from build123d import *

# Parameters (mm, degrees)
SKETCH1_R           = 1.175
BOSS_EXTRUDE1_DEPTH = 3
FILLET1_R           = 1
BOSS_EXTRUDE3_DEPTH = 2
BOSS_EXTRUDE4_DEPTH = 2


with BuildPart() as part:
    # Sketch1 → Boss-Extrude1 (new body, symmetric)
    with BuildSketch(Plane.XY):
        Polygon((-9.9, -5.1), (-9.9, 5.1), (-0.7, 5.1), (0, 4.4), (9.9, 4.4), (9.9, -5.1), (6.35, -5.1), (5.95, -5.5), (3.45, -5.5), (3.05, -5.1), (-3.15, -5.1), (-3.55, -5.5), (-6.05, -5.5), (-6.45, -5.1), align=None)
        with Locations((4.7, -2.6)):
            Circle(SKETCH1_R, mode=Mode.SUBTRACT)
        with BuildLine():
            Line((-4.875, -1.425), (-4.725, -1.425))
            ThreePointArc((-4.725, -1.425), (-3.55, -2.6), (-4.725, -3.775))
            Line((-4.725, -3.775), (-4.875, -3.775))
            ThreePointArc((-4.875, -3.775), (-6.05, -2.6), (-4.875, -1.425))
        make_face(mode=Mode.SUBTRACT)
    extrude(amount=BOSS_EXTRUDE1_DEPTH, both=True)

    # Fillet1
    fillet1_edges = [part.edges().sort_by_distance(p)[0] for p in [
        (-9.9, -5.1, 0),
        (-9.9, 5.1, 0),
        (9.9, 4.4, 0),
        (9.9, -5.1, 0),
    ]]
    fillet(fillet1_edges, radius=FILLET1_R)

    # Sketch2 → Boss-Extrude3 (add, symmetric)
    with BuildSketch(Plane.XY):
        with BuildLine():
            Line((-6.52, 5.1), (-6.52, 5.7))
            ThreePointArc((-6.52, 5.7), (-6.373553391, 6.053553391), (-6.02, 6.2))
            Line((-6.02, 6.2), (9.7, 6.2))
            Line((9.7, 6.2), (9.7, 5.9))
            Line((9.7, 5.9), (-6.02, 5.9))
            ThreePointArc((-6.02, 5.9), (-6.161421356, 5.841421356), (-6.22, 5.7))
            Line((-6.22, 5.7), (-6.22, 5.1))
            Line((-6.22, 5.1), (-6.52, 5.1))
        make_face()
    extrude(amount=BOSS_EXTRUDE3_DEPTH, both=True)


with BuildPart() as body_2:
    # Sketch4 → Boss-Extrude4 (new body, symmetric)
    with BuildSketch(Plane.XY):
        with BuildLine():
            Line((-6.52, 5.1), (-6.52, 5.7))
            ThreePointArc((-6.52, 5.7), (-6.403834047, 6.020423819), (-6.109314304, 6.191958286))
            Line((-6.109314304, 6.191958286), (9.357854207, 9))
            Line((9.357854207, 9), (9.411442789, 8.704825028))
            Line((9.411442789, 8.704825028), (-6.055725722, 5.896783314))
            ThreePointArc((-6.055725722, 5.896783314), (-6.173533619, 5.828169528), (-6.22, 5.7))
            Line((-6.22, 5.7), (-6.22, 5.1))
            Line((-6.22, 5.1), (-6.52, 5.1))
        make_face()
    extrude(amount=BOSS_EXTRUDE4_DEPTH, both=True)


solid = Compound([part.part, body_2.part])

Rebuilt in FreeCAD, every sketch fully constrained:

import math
import FreeCAD as App
import Part
import Sketcher
from FreeCAD import Vector
Q = App.Units.Quantity


def edges_at(feature, points):
    """Names of the edges that pass closest to the given points."""
    edges = feature.Shape.Edges
    near = lambda p: min(range(len(edges)), key=lambda i: edges[i].distToShape(Part.Vertex(*p))[0])
    return sorted({f"Edge{near(p) + 1}" for p in points})


def add_polygon(sketch, points):
    """Adds a closed chain of lines whose ends are joined by coincident constraints."""
    first, n = sketch.GeometryCount, len(points)
    for a, b in zip(points, points[1:] + points[:1]):
        sketch.addGeometry(Part.LineSegment(App.Vector(*a, 0), App.Vector(*b, 0)), False)
    for i in range(n):
        sketch.addConstraint(Sketcher.Constraint("Coincident", first + i, 2, first + (i + 1) % n, 1))

doc = App.newDocument("Part")
params = doc.addObject("Spreadsheet::Sheet", "Params")
for row, (alias, value) in enumerate([
    ("sketch1_diameter", "2.35 mm"),
    ("sketch1_width", "2.5 mm"),
    ("sketch1_width2", "6.2 mm"),
    ("sketch1_width3", "9.9 mm"),
    ("sketch1_width4", "9.2 mm"),
    ("pad1_length", "6 mm"),
    ("fillet_radius", "1 mm"),
    ("sketch2_radius", "0.2 mm"),
    ("sketch2_radius2", "0.5 mm"),
    ("sketch2_height", "0.6 mm"),
    ("sketch2_width", "15.72 mm"),
    ("pad2_length", "4 mm"),
    ("sketch3_radius", "0.2 mm"),
    ("sketch3_radius2", "0.5 mm"),
    ("sketch3_height", "0.6 mm"),
    ("sketch3_length", "15.72 mm"),
    ("pad3_length", "4 mm"),
], start=1):
    params.set(f"A{row}", alias)
    params.set(f"B{row}", "=" + value)
    params.setAlias(f"B{row}", alias)

body = doc.addObject("PartDesign::Body", "Body")

# Sketch on XY plane
sketch1 = body.newObject("Sketcher::SketchObject", "Sketch")
sketch1.AttachmentSupport = (doc.getObject("XY_Plane"), [""])
sketch1.MapMode = "FlatFace"
add_polygon(sketch1, [(-9.9, 5.1), (-9.9, -5.1), (-6.45, -5.1), (-6.05, -5.5), (-3.55, -5.5), (-3.15, -5.1), (3.05, -5.1), (3.45, -5.5), (5.95, -5.5), (6.35, -5.1), (9.9, -5.1), (9.9, 4.4), (0, 4.4), (-0.7, 5.1)])  # lines 0-13
sketch1.addGeometry(Part.Circle(Vector(4.7, -2.6, 0), Vector(0, 0, 1), 1.18), False)  # 14
sketch1.addGeometry(Part.LineSegment(Vector(-4.88, -1.43, 0), Vector(-4.72, -1.43, 0)), False)  # 15
sketch1.addGeometry(Part.ArcOfCircle(Part.Circle(Vector(-4.72, -2.6, 0), Vector(0, 0, 1), 1.18), math.radians(-90), math.radians(90)), False)  # 16
sketch1.addGeometry(Part.LineSegment(Vector(-4.72, -3.77, 0), Vector(-4.88, -3.77, 0)), False)  # 17
sketch1.addGeometry(Part.ArcOfCircle(Part.Circle(Vector(-4.88, -2.6, 0), Vector(0, 0, 1), 1.18), math.radians(90), math.radians(270)), False)  # 18
sketch1.addConstraint([
    Sketcher.Constraint("Tangent", 15, 2, 16, 2),
    Sketcher.Constraint("Tangent", 16, 1, 17, 1),
    Sketcher.Constraint("Tangent", 17, 2, 18, 2),
    Sketcher.Constraint("Tangent", 18, 1, 15, 1),
    Sketcher.Constraint("Vertical", 0),
    Sketcher.Constraint("Horizontal", 1),
    Sketcher.Constraint("Horizontal", 3),
    Sketcher.Constraint("Horizontal", 5),
    Sketcher.Constraint("Horizontal", 7),
    Sketcher.Constraint("Horizontal", 9),
    Sketcher.Constraint("Vertical", 10),
    Sketcher.Constraint("Horizontal", 11),
    Sketcher.Constraint("Horizontal", 13),
    Sketcher.Constraint("Horizontal", 15),
    Sketcher.Constraint("Horizontal", 17),
    Sketcher.Constraint("Equal", 14, 16),
    Sketcher.Constraint("Symmetric", 9, 2, 13, 2, -1, 1),
    Sketcher.Constraint("PointOnObject", 11, 2, -2),
    Sketcher.Constraint("Perpendicular", 2, 4),
    Sketcher.Constraint("Perpendicular", 4, 6),
    Sketcher.Constraint("Perpendicular", 6, 8),
    Sketcher.Constraint("Perpendicular", 8, 12),
    Sketcher.Constraint("Horizontal", 14, 3, 16, 3),
    Sketcher.Constraint("Horizontal", 1, 2, 4, 2),
    Sketcher.Constraint("Horizontal", 3, 2, 6, 2),
    Sketcher.Constraint("Horizontal", 5, 2, 8, 2),
    Sketcher.Constraint("Equal", 3, 7),
    Sketcher.Constraint("Equal", 2, 4),
    Sketcher.Constraint("Diameter", 14, Q("2.35 mm")),
    Sketcher.Constraint("DistanceX", 3, 1, 3, 2, Q("2.5 mm")),
    Sketcher.Constraint("DistanceX", 5, 1, 5, 2, Q("6.2 mm")),
    Sketcher.Constraint("DistanceX", 11, 2, 11, 1, Q("9.9 mm")),
    Sketcher.Constraint("DistanceX", 13, 2, 13, 1, Q("9.2 mm")),
    Sketcher.Constraint("DistanceY", 0, 2, 0, 1, Q("10.2 mm")),
    Sketcher.Constraint("DistanceX", 3, 2, 6, 2, Q("7 mm")),
    Sketcher.Constraint("DistanceY", 14, 3, 10, 2, Q("7 mm")),
    Sketcher.Constraint("DistanceX", 1, 1, 1, 2, Q("3.45 mm")),
    Sketcher.Constraint("DistanceX", 15, 1, 15, 2, Q("0.15 mm")),
    Sketcher.Constraint("DistanceX", -1, 1, 14, 3, Q("4.7 mm")),
    Sketcher.Constraint("DistanceX", 16, 3, -1, 1, Q("4.725 mm")),
])
sketch1.setExpression("Constraints[42]", "Params.sketch1_diameter")
sketch1.setExpression("Constraints[43]", "Params.sketch1_width")
sketch1.setExpression("Constraints[44]", "Params.sketch1_width2")
sketch1.setExpression("Constraints[45]", "Params.sketch1_width3")
sketch1.setExpression("Constraints[46]", "Params.sketch1_width4")
pad1 = body.newObject("PartDesign::Pad", "Pad")
pad1.Profile = sketch1
pad1.setExpression("Length", "Params.pad1_length")
pad1.Midplane = True
doc.recompute()

fillet = body.newObject("PartDesign::Fillet", "Fillet")
fillet.Base = (pad1, edges_at(pad1, [
    (-9.9, -5.1, 0),
    (-9.9, 5.1, 0),
    (9.9, 4.4, 0),
    (9.9, -5.1, 0),
]))
fillet.setExpression("Radius", "Params.fillet_radius")

# Sketch on XY plane
sketch2 = body.newObject("Sketcher::SketchObject", "Sketch001")
sketch2.AttachmentSupport = (doc.getObject("XY_Plane"), [""])
sketch2.MapMode = "FlatFace"
sketch2.addGeometry([
    Part.LineSegment(Vector(-6.52, 5.7, 0), Vector(-6.52, 5.1, 0)),  # 0
    Part.LineSegment(Vector(-6.52, 5.1, 0), Vector(-6.22, 5.1, 0)),  # 1
    Part.LineSegment(Vector(-6.22, 5.1, 0), Vector(-6.22, 5.7, 0)),  # 2
    Part.ArcOfCircle(Part.Circle(Vector(-6.02, 5.7, 0), Vector(0, 0, 1), 0.2), math.radians(90), math.radians(180)),  # 3
    Part.LineSegment(Vector(-6.02, 5.9, 0), Vector(9.7, 5.9, 0)),  # 4
    Part.LineSegment(Vector(9.7, 5.9, 0), Vector(9.7, 6.2, 0)),  # 5
    Part.LineSegment(Vector(9.7, 6.2, 0), Vector(-6.02, 6.2, 0)),  # 6
    Part.ArcOfCircle(Part.Circle(Vector(-6.02, 5.7, 0), Vector(0, 0, 1), 0.5), math.radians(90), math.radians(180)),  # 7
], False)
sketch2.addConstraint([
    Sketcher.Constraint("Coincident", 0, 2, 1, 1),
    Sketcher.Constraint("Coincident", 1, 2, 2, 1),
    Sketcher.Constraint("Tangent", 2, 2, 3, 2),
    Sketcher.Constraint("Tangent", 3, 1, 4, 1),
    Sketcher.Constraint("Coincident", 4, 2, 5, 1),
    Sketcher.Constraint("Coincident", 5, 2, 6, 1),
    Sketcher.Constraint("Tangent", 6, 2, 7, 1),
    Sketcher.Constraint("Tangent", 7, 2, 0, 1),
    Sketcher.Constraint("Vertical", 0),
    Sketcher.Constraint("Horizontal", 1),
    Sketcher.Constraint("Vertical", 2),
    Sketcher.Constraint("Horizontal", 4),
    Sketcher.Constraint("Vertical", 5),
    Sketcher.Constraint("Horizontal", 6),
    Sketcher.Constraint("Coincident", 7, 3, 3, 3),
    Sketcher.Constraint("Radius", 3, Q("0.2 mm")),
    Sketcher.Constraint("Radius", 7, Q("0.5 mm")),
    Sketcher.Constraint("DistanceY", 0, 2, 0, 1, Q("0.6 mm")),
    Sketcher.Constraint("DistanceX", 4, 1, 4, 2, Q("15.72 mm")),
    Sketcher.Constraint("DistanceY", -1, 1, 3, 3, Q("5.7 mm")),
    Sketcher.Constraint("DistanceX", -1, 1, 4, 2, Q("9.7 mm")),
])
sketch2.setExpression("Constraints[15]", "Params.sketch2_radius")
sketch2.setExpression("Constraints[16]", "Params.sketch2_radius2")
sketch2.setExpression("Constraints[17]", "Params.sketch2_height")
sketch2.setExpression("Constraints[18]", "Params.sketch2_width")
pad2 = body.newObject("PartDesign::Pad", "Pad001")
pad2.Profile = sketch2
pad2.setExpression("Length", "Params.pad2_length")
pad2.Midplane = True
body2 = doc.addObject("PartDesign::Body", "Body001")

# Sketch on XY plane
sketch3 = body2.newObject("Sketcher::SketchObject", "Sketch002")
sketch3.AttachmentSupport = (doc.getObject("XY_Plane001"), [""])
sketch3.MapMode = "FlatFace"
sketch3.addGeometry([
    Part.LineSegment(Vector(-6.52, 5.7, 0), Vector(-6.52, 5.1, 0)),  # 0
    Part.LineSegment(Vector(-6.52, 5.1, 0), Vector(-6.22, 5.1, 0)),  # 1
    Part.LineSegment(Vector(-6.22, 5.1, 0), Vector(-6.22, 5.7, 0)),  # 2
    Part.ArcOfCircle(Part.Circle(Vector(-6.02, 5.7, 0), Vector(0, 0, 1), 0.2), math.radians(100), math.radians(180)),  # 3
    Part.LineSegment(Vector(-6.06, 5.9, 0), Vector(9.41, 8.7, 0)),  # 4
    Part.LineSegment(Vector(9.41, 8.7, 0), Vector(9.36, 9, 0)),  # 5
    Part.LineSegment(Vector(9.36, 9, 0), Vector(-6.11, 6.19, 0)),  # 6
    Part.ArcOfCircle(Part.Circle(Vector(-6.02, 5.7, 0), Vector(0, 0, 1), 0.5), math.radians(100), math.radians(180)),  # 7
], False)
sketch3.addConstraint([
    Sketcher.Constraint("Coincident", 0, 2, 1, 1),
    Sketcher.Constraint("Coincident", 1, 2, 2, 1),
    Sketcher.Constraint("Tangent", 2, 2, 3, 2),
    Sketcher.Constraint("Tangent", 3, 1, 4, 1),
    Sketcher.Constraint("Coincident", 4, 2, 5, 1),
    Sketcher.Constraint("Coincident", 5, 2, 6, 1),
    Sketcher.Constraint("Tangent", 6, 2, 7, 1),
    Sketcher.Constraint("Tangent", 7, 2, 0, 1),
    Sketcher.Constraint("Vertical", 0),
    Sketcher.Constraint("Horizontal", 1),
    Sketcher.Constraint("Vertical", 2),
    Sketcher.Constraint("Coincident", 7, 3, 3, 3),
    Sketcher.Constraint("Perpendicular", 4, 5),
    Sketcher.Constraint("Perpendicular", 5, 6),
    Sketcher.Constraint("Radius", 3, Q("0.2 mm")),
    Sketcher.Constraint("Radius", 7, Q("0.5 mm")),
    Sketcher.Constraint("DistanceY", 0, 2, 0, 1, Q("0.6 mm")),
    Sketcher.Constraint("DistanceY", -1, 1, 5, 2, Q("9 mm")),
    Sketcher.Constraint("DistanceY", -1, 1, 3, 3, Q("5.7 mm")),
    Sketcher.Constraint("Distance", 4, Q("15.72 mm")),
    Sketcher.Constraint("DistanceX", 3, 3, -1, 1, Q("6.02 mm")),
])
sketch3.setExpression("Constraints[14]", "Params.sketch3_radius")
sketch3.setExpression("Constraints[15]", "Params.sketch3_radius2")
sketch3.setExpression("Constraints[16]", "Params.sketch3_height")
sketch3.setExpression("Constraints[19]", "Params.sketch3_length")
pad3 = body2.newObject("PartDesign::Pad", "Pad002")
pad3.Profile = sketch3
pad3.setExpression("Length", "Params.pad3_length")
pad3.Midplane = True

doc.recompute()
